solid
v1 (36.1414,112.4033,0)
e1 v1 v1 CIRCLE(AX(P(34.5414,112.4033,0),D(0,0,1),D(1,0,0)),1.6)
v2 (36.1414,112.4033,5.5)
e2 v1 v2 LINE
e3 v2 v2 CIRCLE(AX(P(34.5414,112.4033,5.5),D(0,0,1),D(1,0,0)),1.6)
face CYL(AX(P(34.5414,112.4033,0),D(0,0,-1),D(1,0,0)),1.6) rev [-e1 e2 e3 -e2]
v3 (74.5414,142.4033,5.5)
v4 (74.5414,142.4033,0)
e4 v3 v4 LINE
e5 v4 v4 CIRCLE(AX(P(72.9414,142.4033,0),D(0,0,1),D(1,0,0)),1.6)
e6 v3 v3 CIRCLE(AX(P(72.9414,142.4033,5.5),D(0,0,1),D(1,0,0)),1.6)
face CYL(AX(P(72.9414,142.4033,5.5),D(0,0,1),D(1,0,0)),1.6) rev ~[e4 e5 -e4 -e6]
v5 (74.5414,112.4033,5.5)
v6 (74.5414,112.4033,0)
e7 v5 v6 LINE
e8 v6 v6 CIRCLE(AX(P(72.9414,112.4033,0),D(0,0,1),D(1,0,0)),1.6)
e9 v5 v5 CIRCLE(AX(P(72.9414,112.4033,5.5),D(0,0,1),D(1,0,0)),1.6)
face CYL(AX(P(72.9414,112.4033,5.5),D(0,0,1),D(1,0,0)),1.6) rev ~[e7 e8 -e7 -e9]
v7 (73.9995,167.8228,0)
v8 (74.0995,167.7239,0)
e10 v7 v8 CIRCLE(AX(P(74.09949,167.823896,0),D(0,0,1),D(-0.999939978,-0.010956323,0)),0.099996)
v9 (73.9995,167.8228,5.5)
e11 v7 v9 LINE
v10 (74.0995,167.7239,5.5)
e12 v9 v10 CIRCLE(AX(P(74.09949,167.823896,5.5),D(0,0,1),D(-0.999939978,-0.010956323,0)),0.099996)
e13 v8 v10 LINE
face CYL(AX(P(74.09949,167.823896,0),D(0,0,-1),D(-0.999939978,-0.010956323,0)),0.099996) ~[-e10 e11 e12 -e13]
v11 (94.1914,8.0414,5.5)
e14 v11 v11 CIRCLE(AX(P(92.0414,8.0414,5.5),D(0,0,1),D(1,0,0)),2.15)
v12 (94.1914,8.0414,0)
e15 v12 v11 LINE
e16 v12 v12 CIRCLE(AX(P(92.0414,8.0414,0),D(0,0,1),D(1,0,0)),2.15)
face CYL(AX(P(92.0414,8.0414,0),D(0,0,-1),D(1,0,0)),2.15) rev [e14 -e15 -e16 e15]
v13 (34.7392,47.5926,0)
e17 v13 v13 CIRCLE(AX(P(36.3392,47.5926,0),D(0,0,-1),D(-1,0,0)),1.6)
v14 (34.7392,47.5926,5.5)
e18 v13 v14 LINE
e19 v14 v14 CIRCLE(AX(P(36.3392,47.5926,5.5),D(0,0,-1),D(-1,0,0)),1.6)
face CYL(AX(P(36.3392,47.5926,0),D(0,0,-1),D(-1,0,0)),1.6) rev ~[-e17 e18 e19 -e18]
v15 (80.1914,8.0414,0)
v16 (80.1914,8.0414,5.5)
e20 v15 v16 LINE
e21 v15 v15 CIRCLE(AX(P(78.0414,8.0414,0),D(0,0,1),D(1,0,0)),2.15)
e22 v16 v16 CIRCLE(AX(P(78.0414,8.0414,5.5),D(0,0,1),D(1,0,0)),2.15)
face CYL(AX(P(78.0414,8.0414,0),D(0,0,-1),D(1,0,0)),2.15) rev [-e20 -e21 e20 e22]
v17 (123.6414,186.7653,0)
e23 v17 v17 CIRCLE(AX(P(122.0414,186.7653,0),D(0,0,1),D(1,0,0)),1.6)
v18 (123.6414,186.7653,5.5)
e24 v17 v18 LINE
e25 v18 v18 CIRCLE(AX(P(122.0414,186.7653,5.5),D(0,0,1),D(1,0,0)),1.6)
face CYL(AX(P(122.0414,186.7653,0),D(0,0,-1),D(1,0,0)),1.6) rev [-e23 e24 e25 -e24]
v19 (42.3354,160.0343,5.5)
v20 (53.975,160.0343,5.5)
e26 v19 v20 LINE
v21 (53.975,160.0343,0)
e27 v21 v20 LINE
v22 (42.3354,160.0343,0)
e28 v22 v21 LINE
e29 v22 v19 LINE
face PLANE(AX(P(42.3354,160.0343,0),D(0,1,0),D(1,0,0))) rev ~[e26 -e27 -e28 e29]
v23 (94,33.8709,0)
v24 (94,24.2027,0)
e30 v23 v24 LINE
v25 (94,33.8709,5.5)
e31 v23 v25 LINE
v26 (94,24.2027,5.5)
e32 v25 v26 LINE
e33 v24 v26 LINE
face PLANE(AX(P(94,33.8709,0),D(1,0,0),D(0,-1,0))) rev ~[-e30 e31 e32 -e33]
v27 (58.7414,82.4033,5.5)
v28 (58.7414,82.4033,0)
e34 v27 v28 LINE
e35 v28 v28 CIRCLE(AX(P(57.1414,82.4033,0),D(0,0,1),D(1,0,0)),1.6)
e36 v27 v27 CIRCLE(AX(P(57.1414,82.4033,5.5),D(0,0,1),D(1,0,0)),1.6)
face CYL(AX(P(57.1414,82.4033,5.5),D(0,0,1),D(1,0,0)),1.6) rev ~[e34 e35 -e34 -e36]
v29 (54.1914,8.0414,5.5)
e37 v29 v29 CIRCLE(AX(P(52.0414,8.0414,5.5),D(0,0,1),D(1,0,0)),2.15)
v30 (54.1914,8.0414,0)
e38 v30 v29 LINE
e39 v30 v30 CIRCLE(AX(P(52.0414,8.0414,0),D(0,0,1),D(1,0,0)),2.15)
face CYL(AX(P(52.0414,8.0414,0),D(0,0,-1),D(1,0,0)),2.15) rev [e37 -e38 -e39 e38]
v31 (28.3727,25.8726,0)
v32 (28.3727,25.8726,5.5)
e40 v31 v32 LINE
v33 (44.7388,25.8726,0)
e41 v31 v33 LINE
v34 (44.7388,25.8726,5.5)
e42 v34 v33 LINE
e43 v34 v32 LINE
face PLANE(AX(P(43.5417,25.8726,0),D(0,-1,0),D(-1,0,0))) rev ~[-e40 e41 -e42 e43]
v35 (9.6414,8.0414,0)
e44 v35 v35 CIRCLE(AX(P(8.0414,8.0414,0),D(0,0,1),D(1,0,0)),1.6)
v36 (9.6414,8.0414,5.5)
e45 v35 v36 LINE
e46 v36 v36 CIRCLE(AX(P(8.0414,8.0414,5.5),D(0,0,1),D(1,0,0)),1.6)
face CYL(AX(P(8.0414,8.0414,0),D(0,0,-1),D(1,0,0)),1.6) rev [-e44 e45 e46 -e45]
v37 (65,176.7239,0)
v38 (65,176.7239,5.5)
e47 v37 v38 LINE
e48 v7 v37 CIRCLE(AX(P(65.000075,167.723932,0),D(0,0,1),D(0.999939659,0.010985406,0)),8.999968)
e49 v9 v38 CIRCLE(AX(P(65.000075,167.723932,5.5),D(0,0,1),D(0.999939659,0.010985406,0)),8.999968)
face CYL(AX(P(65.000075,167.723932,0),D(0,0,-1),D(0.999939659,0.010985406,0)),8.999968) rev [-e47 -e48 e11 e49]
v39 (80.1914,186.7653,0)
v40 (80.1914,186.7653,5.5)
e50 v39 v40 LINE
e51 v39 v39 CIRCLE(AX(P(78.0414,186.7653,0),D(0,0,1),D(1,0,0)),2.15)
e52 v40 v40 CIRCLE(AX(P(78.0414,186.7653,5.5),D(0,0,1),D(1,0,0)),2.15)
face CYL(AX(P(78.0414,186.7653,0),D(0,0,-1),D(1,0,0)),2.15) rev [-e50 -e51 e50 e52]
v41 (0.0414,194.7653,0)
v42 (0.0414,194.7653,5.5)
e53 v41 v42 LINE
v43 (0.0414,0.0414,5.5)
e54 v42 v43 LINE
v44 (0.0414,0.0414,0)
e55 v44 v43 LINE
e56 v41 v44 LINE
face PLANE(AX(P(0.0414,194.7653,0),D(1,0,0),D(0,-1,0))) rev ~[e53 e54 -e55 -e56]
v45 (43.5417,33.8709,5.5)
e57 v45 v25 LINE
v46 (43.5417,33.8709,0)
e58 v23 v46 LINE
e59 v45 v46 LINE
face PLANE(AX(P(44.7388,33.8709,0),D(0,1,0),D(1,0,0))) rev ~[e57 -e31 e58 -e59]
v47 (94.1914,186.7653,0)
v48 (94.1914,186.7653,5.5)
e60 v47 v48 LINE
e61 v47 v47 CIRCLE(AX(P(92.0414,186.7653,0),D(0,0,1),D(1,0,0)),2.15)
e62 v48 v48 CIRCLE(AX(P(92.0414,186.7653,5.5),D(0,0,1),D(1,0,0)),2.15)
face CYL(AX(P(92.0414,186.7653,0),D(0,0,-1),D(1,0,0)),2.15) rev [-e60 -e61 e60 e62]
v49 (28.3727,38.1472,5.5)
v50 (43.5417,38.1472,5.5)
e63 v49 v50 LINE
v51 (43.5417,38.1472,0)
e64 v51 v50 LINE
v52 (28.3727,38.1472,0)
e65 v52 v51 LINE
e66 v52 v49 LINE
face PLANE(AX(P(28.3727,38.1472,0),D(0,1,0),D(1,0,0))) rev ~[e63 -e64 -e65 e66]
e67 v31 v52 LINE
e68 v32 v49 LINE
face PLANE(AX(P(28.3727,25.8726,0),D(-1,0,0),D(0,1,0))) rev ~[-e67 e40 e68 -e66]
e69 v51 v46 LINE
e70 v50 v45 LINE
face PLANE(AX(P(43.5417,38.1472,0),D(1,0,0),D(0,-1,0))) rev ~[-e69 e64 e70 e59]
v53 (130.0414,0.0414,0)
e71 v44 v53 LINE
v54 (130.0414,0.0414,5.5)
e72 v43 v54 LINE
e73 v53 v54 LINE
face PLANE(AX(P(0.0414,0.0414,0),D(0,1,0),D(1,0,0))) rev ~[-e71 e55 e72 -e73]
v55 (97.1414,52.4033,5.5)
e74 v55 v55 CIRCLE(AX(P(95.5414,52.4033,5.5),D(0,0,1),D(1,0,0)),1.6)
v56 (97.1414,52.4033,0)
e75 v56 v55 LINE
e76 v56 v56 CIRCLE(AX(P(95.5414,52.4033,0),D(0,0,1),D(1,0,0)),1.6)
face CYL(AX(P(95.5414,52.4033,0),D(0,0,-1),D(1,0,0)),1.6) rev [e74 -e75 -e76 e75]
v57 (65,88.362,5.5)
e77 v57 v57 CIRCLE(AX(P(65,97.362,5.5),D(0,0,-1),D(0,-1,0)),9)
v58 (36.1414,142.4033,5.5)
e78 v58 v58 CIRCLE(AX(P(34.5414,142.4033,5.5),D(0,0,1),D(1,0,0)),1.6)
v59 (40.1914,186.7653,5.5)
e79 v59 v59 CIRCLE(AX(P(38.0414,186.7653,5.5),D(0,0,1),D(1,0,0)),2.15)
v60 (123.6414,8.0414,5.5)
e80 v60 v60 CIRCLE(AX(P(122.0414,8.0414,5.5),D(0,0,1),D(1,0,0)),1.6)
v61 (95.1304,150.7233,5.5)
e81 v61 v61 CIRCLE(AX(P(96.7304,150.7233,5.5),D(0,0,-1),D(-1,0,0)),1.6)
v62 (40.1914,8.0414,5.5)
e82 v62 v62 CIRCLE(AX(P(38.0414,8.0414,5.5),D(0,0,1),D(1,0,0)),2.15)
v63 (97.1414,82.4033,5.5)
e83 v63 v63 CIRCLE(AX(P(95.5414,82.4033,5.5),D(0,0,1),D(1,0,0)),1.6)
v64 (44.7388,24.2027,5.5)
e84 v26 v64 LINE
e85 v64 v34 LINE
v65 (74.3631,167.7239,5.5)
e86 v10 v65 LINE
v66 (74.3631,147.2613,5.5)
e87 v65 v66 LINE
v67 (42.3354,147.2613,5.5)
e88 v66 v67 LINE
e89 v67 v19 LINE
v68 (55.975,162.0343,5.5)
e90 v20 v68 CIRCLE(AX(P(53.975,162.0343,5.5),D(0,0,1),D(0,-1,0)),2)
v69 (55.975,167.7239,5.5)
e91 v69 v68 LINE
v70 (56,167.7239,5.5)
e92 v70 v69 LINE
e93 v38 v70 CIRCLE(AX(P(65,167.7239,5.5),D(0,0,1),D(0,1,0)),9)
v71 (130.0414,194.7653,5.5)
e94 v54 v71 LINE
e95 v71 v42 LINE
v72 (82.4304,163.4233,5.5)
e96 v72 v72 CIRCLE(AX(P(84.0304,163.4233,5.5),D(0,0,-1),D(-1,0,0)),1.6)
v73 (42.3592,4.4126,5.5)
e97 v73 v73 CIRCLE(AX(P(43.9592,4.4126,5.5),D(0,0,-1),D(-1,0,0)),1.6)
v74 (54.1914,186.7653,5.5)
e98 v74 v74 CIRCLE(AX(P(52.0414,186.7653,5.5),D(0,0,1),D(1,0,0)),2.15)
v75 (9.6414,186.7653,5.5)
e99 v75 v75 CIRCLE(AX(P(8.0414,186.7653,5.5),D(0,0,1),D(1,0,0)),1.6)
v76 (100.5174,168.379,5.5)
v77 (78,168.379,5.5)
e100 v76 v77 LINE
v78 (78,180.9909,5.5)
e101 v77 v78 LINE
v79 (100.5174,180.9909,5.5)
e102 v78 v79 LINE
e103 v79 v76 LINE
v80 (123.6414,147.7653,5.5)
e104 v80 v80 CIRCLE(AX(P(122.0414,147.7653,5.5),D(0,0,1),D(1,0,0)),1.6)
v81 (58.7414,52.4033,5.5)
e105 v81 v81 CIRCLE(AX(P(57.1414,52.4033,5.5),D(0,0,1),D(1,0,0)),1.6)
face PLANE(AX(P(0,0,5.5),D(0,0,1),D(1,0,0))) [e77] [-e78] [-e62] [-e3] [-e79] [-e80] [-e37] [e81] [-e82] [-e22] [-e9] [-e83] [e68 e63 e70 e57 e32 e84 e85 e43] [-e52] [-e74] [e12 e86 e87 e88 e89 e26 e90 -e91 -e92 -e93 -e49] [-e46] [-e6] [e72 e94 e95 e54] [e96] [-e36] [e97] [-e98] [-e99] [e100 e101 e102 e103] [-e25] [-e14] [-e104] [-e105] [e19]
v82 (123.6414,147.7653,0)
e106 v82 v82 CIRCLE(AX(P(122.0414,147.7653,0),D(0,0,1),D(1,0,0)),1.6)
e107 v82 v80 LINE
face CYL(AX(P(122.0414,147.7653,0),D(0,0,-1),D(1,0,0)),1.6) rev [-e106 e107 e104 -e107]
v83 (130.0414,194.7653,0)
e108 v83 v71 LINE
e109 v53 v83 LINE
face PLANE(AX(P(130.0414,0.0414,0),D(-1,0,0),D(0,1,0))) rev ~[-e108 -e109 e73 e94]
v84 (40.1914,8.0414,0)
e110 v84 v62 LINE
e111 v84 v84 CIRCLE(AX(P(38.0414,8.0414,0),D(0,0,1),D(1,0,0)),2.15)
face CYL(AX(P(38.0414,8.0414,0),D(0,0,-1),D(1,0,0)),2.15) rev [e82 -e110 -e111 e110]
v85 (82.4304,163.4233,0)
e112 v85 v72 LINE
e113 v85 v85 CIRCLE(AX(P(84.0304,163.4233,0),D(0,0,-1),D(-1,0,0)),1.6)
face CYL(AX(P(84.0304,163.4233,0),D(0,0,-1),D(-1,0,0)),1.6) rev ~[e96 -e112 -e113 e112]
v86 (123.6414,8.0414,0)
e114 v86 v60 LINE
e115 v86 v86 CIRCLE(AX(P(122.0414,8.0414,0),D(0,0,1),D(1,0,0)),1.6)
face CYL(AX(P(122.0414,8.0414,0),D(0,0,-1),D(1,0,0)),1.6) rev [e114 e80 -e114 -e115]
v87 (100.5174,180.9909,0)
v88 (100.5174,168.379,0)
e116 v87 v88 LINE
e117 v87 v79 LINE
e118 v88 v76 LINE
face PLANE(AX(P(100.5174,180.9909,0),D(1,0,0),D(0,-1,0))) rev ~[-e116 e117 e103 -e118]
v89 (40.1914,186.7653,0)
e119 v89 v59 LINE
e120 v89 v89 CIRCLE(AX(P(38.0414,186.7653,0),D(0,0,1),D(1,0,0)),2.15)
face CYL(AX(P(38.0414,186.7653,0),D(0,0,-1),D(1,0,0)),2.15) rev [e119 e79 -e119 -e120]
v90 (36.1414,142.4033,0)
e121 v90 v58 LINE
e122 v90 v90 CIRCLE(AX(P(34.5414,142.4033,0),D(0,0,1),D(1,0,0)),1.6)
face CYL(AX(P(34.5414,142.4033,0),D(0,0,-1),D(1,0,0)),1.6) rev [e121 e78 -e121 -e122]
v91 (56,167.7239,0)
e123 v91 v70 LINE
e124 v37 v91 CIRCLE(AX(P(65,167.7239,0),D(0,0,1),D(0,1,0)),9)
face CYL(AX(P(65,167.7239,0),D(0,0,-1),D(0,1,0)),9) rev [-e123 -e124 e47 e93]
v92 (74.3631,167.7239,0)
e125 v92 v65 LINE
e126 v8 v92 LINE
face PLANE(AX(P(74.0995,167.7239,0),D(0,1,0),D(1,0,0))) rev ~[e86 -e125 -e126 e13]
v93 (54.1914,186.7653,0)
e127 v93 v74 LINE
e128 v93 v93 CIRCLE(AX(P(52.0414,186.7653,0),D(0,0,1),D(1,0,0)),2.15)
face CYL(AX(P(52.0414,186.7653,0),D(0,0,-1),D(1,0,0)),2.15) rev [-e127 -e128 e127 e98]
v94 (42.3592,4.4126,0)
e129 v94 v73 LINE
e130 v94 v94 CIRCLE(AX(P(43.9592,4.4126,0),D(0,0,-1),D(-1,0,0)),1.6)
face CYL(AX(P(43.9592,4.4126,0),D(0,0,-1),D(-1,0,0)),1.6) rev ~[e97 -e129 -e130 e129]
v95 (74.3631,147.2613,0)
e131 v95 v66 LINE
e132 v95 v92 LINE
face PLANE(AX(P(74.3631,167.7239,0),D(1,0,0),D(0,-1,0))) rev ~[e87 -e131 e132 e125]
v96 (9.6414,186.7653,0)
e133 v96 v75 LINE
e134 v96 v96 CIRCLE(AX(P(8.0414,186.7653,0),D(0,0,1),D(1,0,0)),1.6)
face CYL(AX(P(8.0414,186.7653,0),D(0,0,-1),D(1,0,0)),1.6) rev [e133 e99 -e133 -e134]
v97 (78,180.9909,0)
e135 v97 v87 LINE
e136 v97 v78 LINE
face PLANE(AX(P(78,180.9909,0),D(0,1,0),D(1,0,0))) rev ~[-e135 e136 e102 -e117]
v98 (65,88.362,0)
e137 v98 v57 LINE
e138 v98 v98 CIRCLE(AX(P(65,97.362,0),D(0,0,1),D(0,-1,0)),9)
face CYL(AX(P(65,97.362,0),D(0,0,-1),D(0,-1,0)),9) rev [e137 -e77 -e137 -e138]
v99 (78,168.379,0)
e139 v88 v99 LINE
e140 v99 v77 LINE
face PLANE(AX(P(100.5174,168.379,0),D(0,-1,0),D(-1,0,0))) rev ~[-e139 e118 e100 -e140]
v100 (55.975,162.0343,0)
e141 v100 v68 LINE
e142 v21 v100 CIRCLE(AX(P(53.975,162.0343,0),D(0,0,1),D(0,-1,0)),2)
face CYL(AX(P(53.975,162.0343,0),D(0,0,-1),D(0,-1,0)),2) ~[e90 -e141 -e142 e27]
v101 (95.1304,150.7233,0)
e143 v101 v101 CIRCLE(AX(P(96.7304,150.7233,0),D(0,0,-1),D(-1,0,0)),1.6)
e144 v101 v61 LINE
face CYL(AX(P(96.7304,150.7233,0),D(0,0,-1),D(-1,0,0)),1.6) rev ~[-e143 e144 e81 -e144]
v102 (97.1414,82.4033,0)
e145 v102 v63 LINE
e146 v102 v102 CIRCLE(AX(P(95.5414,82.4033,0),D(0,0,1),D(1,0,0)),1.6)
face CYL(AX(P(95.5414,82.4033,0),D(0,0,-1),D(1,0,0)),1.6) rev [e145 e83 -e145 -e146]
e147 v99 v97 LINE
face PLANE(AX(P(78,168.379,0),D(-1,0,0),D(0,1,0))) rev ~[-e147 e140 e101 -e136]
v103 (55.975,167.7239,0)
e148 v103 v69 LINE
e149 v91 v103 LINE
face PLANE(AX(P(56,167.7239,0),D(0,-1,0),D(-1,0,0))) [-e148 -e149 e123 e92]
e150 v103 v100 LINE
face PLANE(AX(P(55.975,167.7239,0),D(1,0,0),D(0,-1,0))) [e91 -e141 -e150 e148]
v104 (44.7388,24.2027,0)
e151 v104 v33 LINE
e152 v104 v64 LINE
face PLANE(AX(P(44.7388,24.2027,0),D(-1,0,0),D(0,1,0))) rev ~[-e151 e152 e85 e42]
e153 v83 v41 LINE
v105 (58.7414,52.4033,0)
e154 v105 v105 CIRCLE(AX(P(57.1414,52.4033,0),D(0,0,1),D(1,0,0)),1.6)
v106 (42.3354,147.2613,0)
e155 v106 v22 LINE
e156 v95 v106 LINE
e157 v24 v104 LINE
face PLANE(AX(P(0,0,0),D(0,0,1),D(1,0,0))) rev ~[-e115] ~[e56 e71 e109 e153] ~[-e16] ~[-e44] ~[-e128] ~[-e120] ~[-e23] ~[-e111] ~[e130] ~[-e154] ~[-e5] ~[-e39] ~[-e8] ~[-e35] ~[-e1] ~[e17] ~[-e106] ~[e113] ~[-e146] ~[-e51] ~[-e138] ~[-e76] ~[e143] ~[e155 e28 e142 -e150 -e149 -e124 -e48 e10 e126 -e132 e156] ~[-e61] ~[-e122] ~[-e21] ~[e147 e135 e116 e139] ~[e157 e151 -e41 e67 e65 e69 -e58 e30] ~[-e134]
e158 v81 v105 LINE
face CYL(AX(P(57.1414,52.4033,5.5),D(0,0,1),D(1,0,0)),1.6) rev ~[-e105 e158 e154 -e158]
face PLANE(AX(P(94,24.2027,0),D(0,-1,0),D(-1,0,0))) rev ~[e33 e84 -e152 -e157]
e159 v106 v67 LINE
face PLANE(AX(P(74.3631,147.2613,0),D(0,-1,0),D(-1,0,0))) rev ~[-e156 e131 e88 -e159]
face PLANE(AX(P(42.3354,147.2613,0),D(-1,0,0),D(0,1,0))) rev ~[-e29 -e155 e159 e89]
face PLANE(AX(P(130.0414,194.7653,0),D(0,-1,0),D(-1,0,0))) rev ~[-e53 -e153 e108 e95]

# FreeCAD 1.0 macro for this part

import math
import FreeCAD as App
import Part
import Sketcher


def add_polygon(sketch, points):
    """Adds a closed chain of lines whose ends are joined by coincident constraints."""
    first, n = sketch.GeometryCount, len(points)
    for a, b in zip(points, points[1:] + points[:1]):
        sketch.addGeometry(Part.LineSegment(App.Vector(*a, 0), App.Vector(*b, 0)), False)
    for i in range(n):
        sketch.addConstraint(Sketcher.Constraint("Coincident", first + i, 2, first + (i + 1) % n, 1))

doc = App.newDocument("Part")
params = doc.addObject("Spreadsheet::Sheet", "Params")
for row, (alias, value) in enumerate([
    ("sketch1_radius", "2 mm"),
    ("sketch1_diameter", "18 mm"),
    ("sketch1_diameter2", "3.2 mm"),
    ("sketch1_diameter3", "4.3 mm"),
    ("sketch1_radius2", "0.1 mm"),
    ("pad1_length", "5.5 mm"),
    ("sketch2_diameter", "3.2 mm"),
    ("pocket1_length", "5.5 mm"),
    ("sketch3_diameter", "3.2 mm"),
    ("pocket2_length", "5.5 mm"),
    ("pad2_length", "5.5 mm"),
    ("sketch5_diameter", "3.2 mm"),
    ("pocket3_length", "5.5 mm"),
], start=1):
    params.set(f"A{row}", alias)
    params.set(f"B{row}", "=" + value)
    params.setAlias(f"B{row}", alias)

body = doc.addObject("PartDesign::Body", "Body")

sketch1 = body.newObject("Sketcher::SketchObject", "Sketch")
sketch1.AttachmentSupport = (doc.getObject("XY_Plane"), [""])
sketch1.MapMode = "FlatFace"
add_polygon(sketch1, [(0.0414, 194.7653), (0.0414, 0.0414), (130.0414, 0.0414), (130.0414, 194.7653)])
sketch1.addGeometry(Part.Circle(App.Vector(8.0414, 8.0414, 0), App.Vector(0, 0, 1), 1.6), False)
sketch1.addGeometry(Part.Circle(App.Vector(38.0414, 8.0414, 0), App.Vector(0, 0, 1), 2.15), False)
sketch1.addGeometry(Part.Circle(App.Vector(52.0414, 8.0414, 0), App.Vector(0, 0, 1), 2.15), False)
add_polygon(sketch1, [(28.3727, 25.8726), (28.3727, 38.1472), (43.5417, 38.1472), (43.5417, 25.8726)])
sketch1.addGeometry(Part.Circle(App.Vector(45.5414, 52.4033, 0), App.Vector(0, 0, 1), 1.6), False)
sketch1.addGeometry(Part.Circle(App.Vector(55.5414, 52.4033, 0), App.Vector(0, 0, 1), 1.6), False)
sketch1.addGeometry(Part.Circle(App.Vector(45.5414, 82.4033, 0), App.Vector(0, 0, 1), 1.6), False)
sketch1.addGeometry(Part.Circle(App.Vector(55.5414, 82.4033, 0), App.Vector(0, 0, 1), 1.6), False)
sketch1.addGeometry(Part.Circle(App.Vector(65, 97.362, 0), App.Vector(0, 0, 1), 9), False)
sketch1.addGeometry(Part.Circle(App.Vector(78.0414, 8.0414, 0), App.Vector(0, 0, 1), 2.15), False)
sketch1.addGeometry(Part.Circle(App.Vector(92.0414, 8.0414, 0), App.Vector(0, 0, 1), 2.15), False)
add_polygon(sketch1, [(44.7388, 24.2027), (44.7388, 33.8709), (94, 33.8709), (94, 24.2027)])
sketch1.addGeometry(Part.Circle(App.Vector(122.0414, 8.0414, 0), App.Vector(0, 0, 1), 1.6), False)
sketch1.addGeometry(Part.Circle(App.Vector(65.5414, 52.4033, 0), App.Vector(0, 0, 1), 1.6), False)
sketch1.addGeometry(Part.Circle(App.Vector(75.5414, 52.4033, 0), App.Vector(0, 0, 1), 1.6), False)
sketch1.addGeometry(Part.Circle(App.Vector(85.5414, 52.4033, 0), App.Vector(0, 0, 1), 1.6), False)
sketch1.addGeometry(Part.Circle(App.Vector(95.5414, 52.4033, 0), App.Vector(0, 0, 1), 1.6), False)
sketch1.addGeometry(Part.Circle(App.Vector(65.5414, 82.4033, 0), App.Vector(0, 0, 1), 1.6), False)
sketch1.addGeometry(Part.Circle(App.Vector(75.5414, 82.4033, 0), App.Vector(0, 0, 1), 1.6), False)
sketch1.addGeometry(Part.Circle(App.Vector(85.5414, 82.4033, 0), App.Vector(0, 0, 1), 1.6), False)
sketch1.addGeometry(Part.Circle(App.Vector(95.5414, 82.4033, 0), App.Vector(0, 0, 1), 1.6), False)
sketch1.addGeometry(Part.Circle(App.Vector(34.5414, 112.4033, 0), App.Vector(0, 0, 1), 1.6), False)
sketch1.addGeometry(Part.Circle(App.Vector(44.5414, 112.4033, 0), App.Vector(0, 0, 1), 1.6), False)
sketch1.addGeometry(Part.Circle(App.Vector(54.5414, 112.4033, 0), App.Vector(0, 0, 1), 1.6), False)
sketch1.addGeometry(Part.Circle(App.Vector(64.5414, 112.4033, 0), App.Vector(0, 0, 1), 1.6), False)
sketch1.addGeometry(Part.Circle(App.Vector(34.5414, 142.4033, 0), App.Vector(0, 0, 1), 1.6), False)
sketch1.addGeometry(Part.Circle(App.Vector(44.5414, 142.4033, 0), App.Vector(0, 0, 1), 1.6), False)
sketch1.addGeometry(Part.Circle(App.Vector(54.5414, 142.4033, 0), App.Vector(0, 0, 1), 1.6), False)
sketch1.addGeometry(Part.Circle(App.Vector(64.5414, 142.4033, 0), App.Vector(0, 0, 1), 1.6), False)
sketch1.addGeometry(Part.Circle(App.Vector(8.0414, 186.7653, 0), App.Vector(0, 0, 1), 1.6), False)
sketch1.addGeometry(Part.ArcOfCircle(Part.Circle(App.Vector(65, 167.7239, 0), App.Vector(0, 0, 1), 9), math.radians(0.629627), math.radians(90)), False)
sketch1.addGeometry(Part.ArcOfCircle(Part.Circle(App.Vector(74.0995, 167.8239, 0), App.Vector(0, 0, 1), 0.100006), math.radians(-179.369772), math.radians(-90)), False)
sketch1.addGeometry(Part.LineSegment(App.Vector(74.0995, 167.7239, 0), App.Vector(74.3631, 167.7239, 0)), False)
sketch1.addGeometry(Part.LineSegment(App.Vector(74.3631, 167.7239, 0), App.Vector(74.3631, 147.2613, 0)), False)
sketch1.addGeometry(Part.LineSegment(App.Vector(74.3631, 147.2613, 0), App.Vector(42.3354, 147.2613, 0)), False)
sketch1.addGeometry(Part.LineSegment(App.Vector(42.3354, 147.2613, 0), App.Vector(42.3354, 160.0343, 0)), False)
sketch1.addGeometry(Part.LineSegment(App.Vector(42.3354, 160.0343, 0), App.Vector(53.975, 160.0343, 0)), False)
sketch1.addGeometry(Part.ArcOfCircle(Part.Circle(App.Vector(53.975, 162.0343, 0), App.Vector(0, 0, 1), 2), math.radians(-90), math.radians(0)), False)
sketch1.addGeometry(Part.LineSegment(App.Vector(55.975, 162.0343, 0), App.Vector(55.975, 167.7239, 0)), False)
sketch1.addGeometry(Part.LineSegment(App.Vector(55.975, 167.7239, 0), App.Vector(56, 167.7239, 0)), False)
sketch1.addGeometry(Part.ArcOfCircle(Part.Circle(App.Vector(65, 167.7239, 0), App.Vector(0, 0, 1), 9), math.radians(90), math.radians(180)), False)
sketch1.addGeometry(Part.Circle(App.Vector(38.0414, 186.7653, 0), App.Vector(0, 0, 1), 2.15), False)
sketch1.addGeometry(Part.Circle(App.Vector(52.0414, 186.7653, 0), App.Vector(0, 0, 1), 2.15), False)
sketch1.addGeometry(Part.Circle(App.Vector(74.5414, 112.4033, 0), App.Vector(0, 0, 1), 1.6), False)
sketch1.addGeometry(Part.Circle(App.Vector(84.5414, 112.4033, 0), App.Vector(0, 0, 1), 1.6), False)
sketch1.addGeometry(Part.Circle(App.Vector(74.5414, 142.4033, 0), App.Vector(0, 0, 1), 1.6), False)
sketch1.addGeometry(Part.Circle(App.Vector(84.5414, 142.4033, 0), App.Vector(0, 0, 1), 1.6), False)
sketch1.addGeometry(Part.Circle(App.Vector(78.0414, 186.7653, 0), App.Vector(0, 0, 1), 2.15), False)
add_polygon(sketch1, [(78, 168.379), (78, 180.9909), (100.5174, 180.9909), (100.5174, 168.379)])
sketch1.addGeometry(Part.Circle(App.Vector(92.0414, 186.7653, 0), App.Vector(0, 0, 1), 2.15), False)
sketch1.addGeometry(Part.Circle(App.Vector(122.0414, 147.7653, 0), App.Vector(0, 0, 1), 1.6), False)
sketch1.addGeometry(Part.Circle(App.Vector(122.0414, 186.7653, 0), App.Vector(0, 0, 1), 1.6), False)
sketch1.addConstraint([
    Sketcher.Constraint("Tangent", 40, 1, 41, 1),
    Sketcher.Constraint("Tangent", 41, 2, 42, 1),
    Sketcher.Constraint("Coincident", 42, 2, 43, 1),
    Sketcher.Constraint("Coincident", 43, 2, 44, 1),
    Sketcher.Constraint("Coincident", 44, 2, 45, 1),
    Sketcher.Constraint("Coincident", 45, 2, 46, 1),
    Sketcher.Constraint("Tangent", 46, 2, 47, 1),
    Sketcher.Constraint("Tangent", 47, 2, 48, 1),
    Sketcher.Constraint("Coincident", 48, 2, 49, 1),
    Sketcher.Constraint("Coincident", 49, 2, 50, 2),
    Sketcher.Constraint("Tangent", 50, 1, 40, 2),
    Sketcher.Constraint("Vertical", 0),
    Sketcher.Constraint("Horizontal", 1),
    Sketcher.Constraint("Vertical", 2),
    Sketcher.Constraint("Horizontal", 3),
    Sketcher.Constraint("Vertical", 7),
    Sketcher.Constraint("Horizontal", 8),
    Sketcher.Constraint("Vertical", 9),
    Sketcher.Constraint("Horizontal", 10),
    Sketcher.Constraint("Vertical", 18),
    Sketcher.Constraint("Horizontal", 19),
    Sketcher.Constraint("Vertical", 20),
    Sketcher.Constraint("Horizontal", 21),
    Sketcher.Constraint("Horizontal", 42),
    Sketcher.Constraint("Vertical", 43),
    Sketcher.Constraint("Horizontal", 44),
    Sketcher.Constraint("Vertical", 45),
    Sketcher.Constraint("Horizontal", 46),
    Sketcher.Constraint("Vertical", 48),
    Sketcher.Constraint("Horizontal", 49),
    Sketcher.Constraint("Vertical", 58),
    Sketcher.Constraint("Horizontal", 59),
    Sketcher.Constraint("Vertical", 60),
    Sketcher.Constraint("Horizontal", 61),
    Sketcher.Constraint("Equal", 5, 6),
    Sketcher.Constraint("Equal", 4, 11),
    Sketcher.Constraint("Equal", 11, 12),
    Sketcher.Constraint("Equal", 12, 13),
    Sketcher.Constraint("Equal", 13, 14),
    Sketcher.Constraint("Equal", 6, 16),
    Sketcher.Constraint("Equal", 16, 17),
    Sketcher.Constraint("Equal", 14, 22),
    Sketcher.Constraint("Equal", 22, 23),
    Sketcher.Constraint("Equal", 23, 24),
    Sketcher.Constraint("Equal", 24, 25),
    Sketcher.Constraint("Equal", 25, 26),
    Sketcher.Constraint("Equal", 26, 27),
    Sketcher.Constraint("Equal", 27, 28),
    Sketcher.Constraint("Equal", 28, 29),
    Sketcher.Constraint("Equal", 29, 30),
    Sketcher.Constraint("Equal", 30, 31),
    Sketcher.Constraint("Equal", 31, 32),
    Sketcher.Constraint("Equal", 32, 33),
    Sketcher.Constraint("Equal", 33, 34),
    Sketcher.Constraint("Equal", 34, 35),
    Sketcher.Constraint("Equal", 35, 36),
    Sketcher.Constraint("Equal", 36, 37),
    Sketcher.Constraint("Equal", 37, 38),
    Sketcher.Constraint("Equal", 38, 39),
    Sketcher.Constraint("Equal", 15, 40),
    Sketcher.Constraint("Equal", 40, 50),
    Sketcher.Constraint("Equal", 17, 51),
    Sketcher.Constraint("Equal", 51, 52),
    Sketcher.Constraint("Equal", 39, 53),
    Sketcher.Constraint("Equal", 53, 54),
    Sketcher.Constraint("Equal", 54, 55),
    Sketcher.Constraint("Equal", 55, 56),
    Sketcher.Constraint("Equal", 52, 57),
    Sketcher.Constraint("Equal", 57, 62),
    Sketcher.Constraint("Equal", 56, 63),
    Sketcher.Constraint("Equal", 63, 64),
    Sketcher.Constraint("Horizontal", 4, 3, 5, 3),
    Sketcher.Constraint("Horizontal", 5, 3, 6, 3),
    Sketcher.Constraint("Horizontal", 11, 3, 12, 3),
    Sketcher.Constraint("Horizontal", 13, 3, 14, 3),
    Sketcher.Constraint("Horizontal", 6, 3, 16, 3),
    Sketcher.Constraint("Horizontal", 16, 3, 17, 3),
    Sketcher.Constraint("Horizontal", 17, 3, 22, 3),
    Sketcher.Constraint("Horizontal", 12, 3, 23, 3),
    Sketcher.Constraint("Horizontal", 23, 3, 24, 3),
    Sketcher.Constraint("Horizontal", 24, 3, 25, 3),
    Sketcher.Constraint("Horizontal", 25, 3, 26, 3),
    Sketcher.Constraint("Horizontal", 14, 3, 27, 3),
    Sketcher.Constraint("Horizontal", 27, 3, 28, 3),
    Sketcher.Constraint("Horizontal", 28, 3, 29, 3),
    Sketcher.Constraint("Horizontal", 29, 3, 30, 3),
    Sketcher.Constraint("Horizontal", 31, 3, 32, 3),
    Sketcher.Constraint("Horizontal", 32, 3, 33, 3),
    Sketcher.Constraint("Horizontal", 33, 3, 34, 3),
    Sketcher.Constraint("Horizontal", 35, 3, 36, 3),
    Sketcher.Constraint("Horizontal", 36, 3, 37, 3),
    Sketcher.Constraint("Horizontal", 37, 3, 38, 3),
    Sketcher.Constraint("Horizontal", 39, 3, 51, 3),
    Sketcher.Constraint("Horizontal", 51, 3, 52, 3),
    Sketcher.Constraint("Horizontal", 34, 3, 53, 3),
    Sketcher.Constraint("Horizontal", 53, 3, 54, 3),
    Sketcher.Constraint("Horizontal", 38, 3, 55, 3),
    Sketcher.Constraint("Horizontal", 55, 3, 56, 3),
    Sketcher.Constraint("Horizontal", 52, 3, 57, 3),
    Sketcher.Constraint("Horizontal", 57, 3, 62, 3),
    Sketcher.Constraint("Horizontal", 62, 3, 64, 3),
    Sketcher.Constraint("Horizontal", 50, 3, 41, 2),
    Sketcher.Constraint("Horizontal", 42, 2, 48, 2),
    Sketcher.Constraint("Vertical", 11, 3, 13, 3),
    Sketcher.Constraint("Vertical", 12, 3, 14, 3),
    Sketcher.Constraint("Vertical", 23, 3, 27, 3),
    Sketcher.Constraint("Vertical", 24, 3, 28, 3),
    Sketcher.Constraint("Vertical", 25, 3, 29, 3),
    Sketcher.Constraint("Vertical", 26, 3, 30, 3),
    Sketcher.Constraint("Vertical", 31, 3, 35, 3),
    Sketcher.Constraint("Vertical", 32, 3, 36, 3),
    Sketcher.Constraint("Vertical", 33, 3, 37, 3),
    Sketcher.Constraint("Vertical", 34, 3, 38, 3),
    Sketcher.Constraint("Vertical", 4, 3, 39, 3),
    Sketcher.Constraint("Vertical", 15, 3, 40, 3),
    Sketcher.Constraint("Vertical", 5, 3, 51, 3),
    Sketcher.Constraint("Vertical", 6, 3, 52, 3),
    Sketcher.Constraint("Vertical", 53, 3, 55, 3),
    Sketcher.Constraint("Vertical", 54, 3, 56, 3),
    Sketcher.Constraint("Vertical", 16, 3, 57, 3),
    Sketcher.Constraint("Vertical", 17, 3, 62, 3),
    Sketcher.Constraint("Vertical", 22, 3, 63, 3),
    Sketcher.Constraint("Vertical", 63, 3, 64, 3),
    Sketcher.Constraint("Vertical", 40, 3, 50, 1),
    Sketcher.Constraint("Radius", 47, 2.0),
    Sketcher.Constraint("Diameter", 15, 18.0),
    Sketcher.Constraint("Diameter", 4, 3.2),
    Sketcher.Constraint("Diameter", 5, 4.3),
    Sketcher.Constraint("Radius", 41, 0.1),
    Sketcher.Constraint("DistanceX", 1, 1, 1, 2, 130.0),
    Sketcher.Constraint("DistanceY", 0, 2, 0, 1, 194.724),
    Sketcher.Constraint("DistanceX", -1, 1, 15, 3, 65.0),
    Sketcher.Constraint("DistanceX", -1, 1, 19, 2, 94.0),
    Sketcher.Constraint("DistanceX", -1, 1, 58, 2, 78.0),
    Sketcher.Constraint("DistanceX", 8, 1, 8, 2, 15.169),
    Sketcher.Constraint("DistanceX", 49, 1, 49, 2, 0.025),
    Sketcher.Constraint("DistanceY", 45, 1, 45, 2, 12.773),
    Sketcher.Constraint("DistanceY", 58, 1, 58, 2, 12.612),
    Sketcher.Constraint("DistanceX", 19, 1, 19, 2, 49.2612),
    Sketcher.Constraint("DistanceX", 42, 1, 42, 2, 0.2636),
    Sketcher.Constraint("DistanceX", 44, 2, 44, 1, 32.0277),
    Sketcher.Constraint("DistanceX", 59, 1, 59, 2, 22.5174),
    Sketcher.Constraint("DistanceY", 7, 1, 7, 2, 12.2746),
    Sketcher.Constraint("DistanceY", 18, 1, 18, 2, 9.6682),
    Sketcher.Constraint("DistanceY", 43, 2, 43, 1, 20.4626),
    Sketcher.Constraint("DistanceY", -1, 1, 15, 3, 97.362),
    Sketcher.Constraint("DistanceY", -1, 1, 40, 3, 167.724),
    Sketcher.Constraint("DistanceY", -1, 1, 18, 2, 33.871),
    Sketcher.Constraint("DistanceY", -1, 1, 58, 2, 180.991),
    Sketcher.Constraint("DistanceX", -1, 1, 4, 3, 8.0414),
    Sketcher.Constraint("DistanceY", -1, 1, 4, 3, 8.0414),
    Sketcher.Constraint("DistanceX", -1, 1, 5, 3, 38.0414),
    Sketcher.Constraint("DistanceX", -1, 1, 6, 3, 52.0414),
    Sketcher.Constraint("DistanceX", -1, 1, 11, 3, 45.5414),
    Sketcher.Constraint("DistanceY", -1, 1, 11, 3, 52.4033),
    Sketcher.Constraint("DistanceX", -1, 1, 12, 3, 55.5414),
    Sketcher.Constraint("DistanceY", -1, 1, 13, 3, 82.4033),
    Sketcher.Constraint("DistanceX", -1, 1, 16, 3, 78.0414),
    Sketcher.Constraint("DistanceX", -1, 1, 17, 3, 92.0414),
    Sketcher.Constraint("DistanceX", -1, 1, 22, 3, 122.0414),
    Sketcher.Constraint("DistanceX", -1, 1, 23, 3, 65.5414),
    Sketcher.Constraint("DistanceX", -1, 1, 24, 3, 75.5414),
    Sketcher.Constraint("DistanceX", -1, 1, 25, 3, 85.5414),
    Sketcher.Constraint("DistanceX", -1, 1, 26, 3, 95.5414),
    Sketcher.Constraint("DistanceX", -1, 1, 31, 3, 34.5414),
    Sketcher.Constraint("DistanceY", -1, 1, 31, 3, 112.4033),
    Sketcher.Constraint("DistanceX", -1, 1, 32, 3, 44.5414),
    Sketcher.Constraint("DistanceX", -1, 1, 33, 3, 54.5414),
    Sketcher.Constraint("DistanceX", -1, 1, 34, 3, 64.5414),
    Sketcher.Constraint("DistanceY", -1, 1, 35, 3, 142.4033),
    Sketcher.Constraint("DistanceY", -1, 1, 39, 3, 186.7653),
    Sketcher.Constraint("DistanceX", -1, 1, 53, 3, 74.5414),
    Sketcher.Constraint("DistanceX", -1, 1, 54, 3, 84.5414),
    Sketcher.Constraint("DistanceY", -1, 1, 63, 3, 147.7653),
    Sketcher.Constraint("DistanceX", -1, 1, 0, 2, 0.0414),
    Sketcher.Constraint("DistanceY", -1, 1, 0, 2, 0.0414),
    Sketcher.Constraint("DistanceX", -1, 1, 7, 2, 28.3727),
    Sketcher.Constraint("DistanceY", -1, 1, 7, 2, 38.1472),
])
sketch1.setExpression("Constraints[140]", "Params.sketch1_radius")
sketch1.setExpression("Constraints[141]", "Params.sketch1_diameter")
sketch1.setExpression("Constraints[142]", "Params.sketch1_diameter2")
sketch1.setExpression("Constraints[143]", "Params.sketch1_diameter3")
sketch1.setExpression("Constraints[144]", "Params.sketch1_radius2")
pad1 = body.newObject("PartDesign::Pad", "Pad")
pad1.Profile = sketch1
pad1.setExpression("Length", "Params.pad1_length")

sketch2 = body.newObject("Sketcher::SketchObject", "Sketch001")
sketch2.AttachmentSupport = (doc.getObject("XY_Plane"), [""])
sketch2.MapMode = "FlatFace"
sketch2.addGeometry([
    Part.Circle(App.Vector(36.3392, 47.5926, 0), App.Vector(0, 0, 1), 1.6),
    Part.Circle(App.Vector(43.9592, 4.4126, 0), App.Vector(0, 0, 1), 1.6),
], False)
sketch2.addConstraint([
    Sketcher.Constraint("Equal", 0, 1),
    Sketcher.Constraint("Diameter", 0, 3.2),
    Sketcher.Constraint("DistanceX", 0, 3, 1, 3, 7.62),
    Sketcher.Constraint("DistanceY", 1, 3, 0, 3, 43.18),
    Sketcher.Constraint("DistanceX", -1, 1, 0, 3, 36.3392),
    Sketcher.Constraint("DistanceY", -1, 1, 0, 3, 47.5926),
])
sketch2.setExpression("Constraints[1]", "Params.sketch2_diameter")
pocket1 = body.newObject("PartDesign::Pocket", "Pocket")
pocket1.Profile = sketch2
pocket1.setExpression("Length", "Params.pocket1_length")
pocket1.Reversed = True

sketch3 = body.newObject("Sketcher::SketchObject", "Sketch002")
sketch3.AttachmentSupport = (doc.getObject("XY_Plane"), [""])
sketch3.MapMode = "FlatFace"
sketch3.addGeometry([
    Part.Circle(App.Vector(96.7304, 150.7233, 0), App.Vector(0, 0, 1), 1.6),
    Part.Circle(App.Vector(84.0304, 163.4233, 0), App.Vector(0, 0, 1), 1.6),
], False)
sketch3.addConstraint([
    Sketcher.Constraint("Equal", 0, 1),
    Sketcher.Constraint("Diameter", 0, 3.2),
    Sketcher.Constraint("DistanceX", 1, 3, 0, 3, 12.7),
    Sketcher.Constraint("DistanceY", 0, 3, 1, 3, 12.7),
    Sketcher.Constraint("DistanceX", -1, 1, 0, 3, 96.7304),
    Sketcher.Constraint("DistanceY", -1, 1, 0, 3, 150.7233),
])
sketch3.setExpression("Constraints[1]", "Params.sketch3_diameter")
pocket2 = body.newObject("PartDesign::Pocket", "Pocket001")
pocket2.Profile = sketch3
pocket2.setExpression("Length", "Params.pocket2_length")
pocket2.Reversed = True

sketch4 = body.newObject("Sketcher::SketchObject", "Sketch003")
sketch4.AttachmentSupport = (doc.getObject("XY_Plane"), [""])
sketch4.MapMode = "FlatFace"
sketch4.AttachmentOffset = App.Placement(App.Vector(0, 0, 5.5), App.Rotation())
add_polygon(sketch4, [(92.6312, 146.0723), (39.514, 146.0723), (39.514, 107.6919), (92.6312, 107.6919)])
add_polygon(sketch4, [(90.526, 86.9632), (39.514, 86.9632), (39.514, 49.2306), (90.526, 49.2306)])
sketch4.addConstraint([
    Sketcher.Constraint("Horizontal", 0),
    Sketcher.Constraint("Vertical", 1),
    Sketcher.Constraint("Horizontal", 2),
    Sketcher.Constraint("Vertical", 3),
    Sketcher.Constraint("Horizontal", 4),
    Sketcher.Constraint("Vertical", 5),
    Sketcher.Constraint("Horizontal", 6),
    Sketcher.Constraint("Vertical", 7),
    Sketcher.Constraint("Vertical", 1, 2, 4, 2),
    Sketcher.Constraint("DistanceX", 4, 2, 4, 1, 51.012),
    Sketcher.Constraint("DistanceX", 0, 2, 0, 1, 53.1172),
    Sketcher.Constraint("DistanceY", 1, 2, 1, 1, 38.3804),
    Sketcher.Constraint("DistanceY", 5, 2, 5, 1, 37.7326),
    Sketcher.Constraint("DistanceX", -1, 1, 0, 2, 39.514),
    Sketcher.Constraint("DistanceY", -1, 1, 1, 2, 107.692),
    Sketcher.Constraint("DistanceY", 4, 2, 0, 2, 59.109),
])
pad2 = body.newObject("PartDesign::Pad", "Pad001")
pad2.Profile = sketch4
pad2.setExpression("Length", "Params.pad2_length")
pad2.Reversed = True

sketch5 = body.newObject("Sketcher::SketchObject", "Sketch004")
sketch5.AttachmentSupport = (doc.getObject("XY_Plane"), [""])
sketch5.MapMode = "FlatFace"
sketch5.AttachmentOffset = App.Placement(App.Vector(0, 0, 5.5), App.Rotation())
sketch5.addGeometry(Part.Circle(App.Vector(72.9414, 142.4033, 0), App.Vector(0, 0, 1), 1.6), False)
sketch5.addGeometry(Part.Circle(App.Vector(72.9414, 112.4033, 0), App.Vector(0, 0, 1), 1.6), False)
sketch5.addGeometry(Part.Circle(App.Vector(57.1414, 82.4033, 0), App.Vector(0, 0, 1), 1.6), False)
sketch5.addGeometry(Part.Circle(App.Vector(57.1414, 52.4033, 0), App.Vector(0, 0, 1), 1.6), False)
add_polygon(sketch5, [(44.7388, 25.8726), (44.7388, 33.8709), (43.5417, 33.8709), (43.5417, 25.8726)])
sketch5.addConstraint([
    Sketcher.Constraint("Vertical", 4),
    Sketcher.Constraint("Horizontal", 5),
    Sketcher.Constraint("Vertical", 6),
    Sketcher.Constraint("Horizontal", 7),
    Sketcher.Constraint("Equal", 0, 1),
    Sketcher.Constraint("Equal", 1, 2),
    Sketcher.Constraint("Equal", 2, 3),
    Sketcher.Constraint("Vertical", 0, 3, 1, 3),
    Sketcher.Constraint("Vertical", 2, 3, 3, 3),
    Sketcher.Constraint("Diameter", 0, 3.2),
    Sketcher.Constraint("DistanceY", 1, 3, 0, 3, 30.0),
    Sketcher.Constraint("DistanceY", 2, 3, 1, 3, 30.0),
    Sketcher.Constraint("DistanceY", 3, 3, 2, 3, 30.0),
    Sketcher.Constraint("DistanceX", 2, 3, 1, 3, 15.8),
    Sketcher.Constraint("DistanceX", 5, 2, 5, 1, 1.197),
    Sketcher.Constraint("DistanceY", 4, 1, 4, 2, 7.9983),
    Sketcher.Constraint("DistanceY", -1, 1, 4, 2, 33.871),
    Sketcher.Constraint("DistanceX", -1, 1, 0, 3, 72.9414),
    Sketcher.Constraint("DistanceY", -1, 1, 0, 3, 142.4033),
    Sketcher.Constraint("DistanceX", -1, 1, 4, 2, 44.7388),
])
sketch5.setExpression("Constraints[13]", "Params.sketch5_diameter")
pocket3 = body.newObject("PartDesign::Pocket", "Pocket002")
pocket3.Profile = sketch5
pocket3.setExpression("Length", "Params.pocket3_length")

doc.recompute()
